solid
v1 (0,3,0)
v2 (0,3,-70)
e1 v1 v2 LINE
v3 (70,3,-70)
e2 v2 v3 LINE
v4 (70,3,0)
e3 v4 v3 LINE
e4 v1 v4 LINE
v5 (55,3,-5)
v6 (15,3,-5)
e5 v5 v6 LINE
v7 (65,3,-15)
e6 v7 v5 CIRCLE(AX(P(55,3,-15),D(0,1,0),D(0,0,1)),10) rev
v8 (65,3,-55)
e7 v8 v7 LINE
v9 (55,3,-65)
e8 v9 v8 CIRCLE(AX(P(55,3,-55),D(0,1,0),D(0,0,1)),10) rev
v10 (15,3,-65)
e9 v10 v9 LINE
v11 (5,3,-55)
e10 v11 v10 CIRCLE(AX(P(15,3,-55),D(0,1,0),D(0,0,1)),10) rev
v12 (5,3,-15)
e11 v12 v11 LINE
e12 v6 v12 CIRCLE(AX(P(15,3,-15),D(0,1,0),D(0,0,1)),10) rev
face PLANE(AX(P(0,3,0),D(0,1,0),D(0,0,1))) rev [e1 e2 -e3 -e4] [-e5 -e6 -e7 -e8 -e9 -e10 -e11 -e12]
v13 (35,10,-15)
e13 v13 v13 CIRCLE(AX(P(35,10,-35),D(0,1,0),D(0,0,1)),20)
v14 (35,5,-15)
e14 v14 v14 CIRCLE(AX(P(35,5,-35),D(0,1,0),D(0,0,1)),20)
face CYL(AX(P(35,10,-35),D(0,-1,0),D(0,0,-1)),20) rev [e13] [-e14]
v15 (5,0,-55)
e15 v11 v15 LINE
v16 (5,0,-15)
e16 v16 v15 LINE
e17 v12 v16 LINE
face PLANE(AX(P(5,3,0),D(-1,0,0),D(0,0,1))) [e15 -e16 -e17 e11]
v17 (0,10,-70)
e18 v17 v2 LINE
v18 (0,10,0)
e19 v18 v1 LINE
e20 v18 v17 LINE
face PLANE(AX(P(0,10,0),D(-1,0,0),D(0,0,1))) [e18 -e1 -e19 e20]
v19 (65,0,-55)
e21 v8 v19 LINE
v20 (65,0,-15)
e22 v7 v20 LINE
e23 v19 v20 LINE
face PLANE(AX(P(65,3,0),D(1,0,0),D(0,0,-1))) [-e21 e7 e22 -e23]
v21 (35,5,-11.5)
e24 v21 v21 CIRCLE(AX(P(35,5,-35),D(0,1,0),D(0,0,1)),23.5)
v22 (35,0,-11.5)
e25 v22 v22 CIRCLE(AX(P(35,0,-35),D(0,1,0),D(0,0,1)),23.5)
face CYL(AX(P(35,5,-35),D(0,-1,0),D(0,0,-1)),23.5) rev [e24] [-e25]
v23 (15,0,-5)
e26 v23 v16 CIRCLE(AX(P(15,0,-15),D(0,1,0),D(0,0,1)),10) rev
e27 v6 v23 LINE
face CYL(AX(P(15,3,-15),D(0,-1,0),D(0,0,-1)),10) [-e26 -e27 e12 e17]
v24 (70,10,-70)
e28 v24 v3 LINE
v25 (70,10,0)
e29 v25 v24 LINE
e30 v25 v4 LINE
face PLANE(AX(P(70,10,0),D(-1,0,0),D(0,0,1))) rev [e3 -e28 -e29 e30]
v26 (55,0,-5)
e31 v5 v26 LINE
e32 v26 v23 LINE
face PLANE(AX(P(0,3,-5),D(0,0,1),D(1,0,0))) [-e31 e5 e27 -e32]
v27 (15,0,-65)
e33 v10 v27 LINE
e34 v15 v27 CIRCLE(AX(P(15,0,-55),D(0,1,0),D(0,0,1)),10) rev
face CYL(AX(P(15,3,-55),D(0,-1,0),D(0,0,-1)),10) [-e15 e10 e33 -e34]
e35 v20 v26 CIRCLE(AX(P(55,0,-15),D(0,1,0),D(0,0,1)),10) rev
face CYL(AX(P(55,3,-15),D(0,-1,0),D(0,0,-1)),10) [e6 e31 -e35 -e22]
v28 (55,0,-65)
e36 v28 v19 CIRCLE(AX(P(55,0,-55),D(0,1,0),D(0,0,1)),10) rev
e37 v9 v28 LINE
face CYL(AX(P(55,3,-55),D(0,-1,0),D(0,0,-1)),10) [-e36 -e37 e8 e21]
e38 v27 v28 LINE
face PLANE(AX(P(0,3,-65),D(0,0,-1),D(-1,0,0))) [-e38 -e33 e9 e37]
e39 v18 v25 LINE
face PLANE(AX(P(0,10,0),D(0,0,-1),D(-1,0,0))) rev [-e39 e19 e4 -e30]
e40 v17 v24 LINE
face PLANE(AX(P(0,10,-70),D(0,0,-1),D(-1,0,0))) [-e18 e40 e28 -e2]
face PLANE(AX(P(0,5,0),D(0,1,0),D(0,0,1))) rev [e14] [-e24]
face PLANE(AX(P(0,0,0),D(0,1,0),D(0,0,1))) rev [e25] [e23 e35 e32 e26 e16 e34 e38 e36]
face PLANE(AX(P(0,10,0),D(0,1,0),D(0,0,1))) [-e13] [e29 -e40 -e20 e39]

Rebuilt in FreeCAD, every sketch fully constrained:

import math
import FreeCAD as App
import Part
import Sketcher

V = App.Vector

doc = App.newDocument("Part")
body = doc.addObject("PartDesign::Body", "Body")

sketch1 = body.newObject("Sketcher::SketchObject", "Sketch")
sketch1.AttachmentSupport = (doc.getObject("XZ_Plane"), [""])
sketch1.MapMode = "FlatFace"
sketch1.addGeometry([
    Part.LineSegment(V(0, -70, 0), V(0, 0, 0)),
    Part.LineSegment(V(0, 0, 0), V(70, 0, 0)),
    Part.LineSegment(V(70, 0, 0), V(70, -70, 0)),
    Part.LineSegment(V(70, -70, 0), V(0, -70, 0)),
    Part.Circle(V(35, -35, 0), V(0, 0, 1), 20),
], False)
sketch1.addConstraint([
    Sketcher.Constraint("Coincident", 0, 2, 1, 1),
    Sketcher.Constraint("Coincident", 1, 2, 2, 1),
    Sketcher.Constraint("Coincident", 2, 2, 3, 1),
    Sketcher.Constraint("Coincident", 3, 2, 0, 1),
    Sketcher.Constraint("Vertical", 0),
    Sketcher.Constraint("Horizontal", 1),
    Sketcher.Constraint("Vertical", 2),
    Sketcher.Constraint("Horizontal", 3),
    Sketcher.Constraint("Coincident", 0, 2, -1, 1),
    Sketcher.Constraint("Equal", 3, 0),
    Sketcher.Constraint("Diameter", 4, 40.0),
    Sketcher.Constraint("DistanceX", 1, 1, 1, 2, 70.0),
    Sketcher.Constraint("DistanceX", -1, 1, 4, 3, 35.0),
    Sketcher.Constraint("DistanceY", 4, 3, -1, 1, 35.0),
])
pad1 = body.newObject("PartDesign::Pad", "Pad")
pad1.Profile = sketch1
pad1.Length = 10
pad1.Reversed = True

sketch2 = body.newObject("Sketcher::SketchObject", "Sketch001")
sketch2.AttachmentSupport = (doc.getObject("XZ_Plane"), [""])
sketch2.MapMode = "FlatFace"
sketch2.addGeometry([
    Part.LineSegment(V(0, -70, 0), V(0, 0, 0)),
    Part.LineSegment(V(0, 0, 0), V(70, 0, 0)),
    Part.LineSegment(V(70, 0, 0), V(70, -70, 0)),
    Part.LineSegment(V(70, -70, 0), V(0, -70, 0)),
    Part.LineSegment(V(5, -15, 0), V(5, -55, 0)),
    Part.ArcOfCircle(Part.Circle(V(15, -55, 0), V(0, 0, 1), 10), math.radians(180), math.radians(270)),
    Part.LineSegment(V(15, -65, 0), V(55, -65, 0)),
    Part.ArcOfCircle(Part.Circle(V(55, -55, 0), V(0, 0, 1), 10), math.radians(-90), math.radians(0)),
    Part.LineSegment(V(65, -55, 0), V(65, -15, 0)),
    Part.ArcOfCircle(Part.Circle(V(55, -15, 0), V(0, 0, 1), 10), math.radians(0), math.radians(90)),
    Part.LineSegment(V(55, -5, 0), V(15, -5, 0)),
    Part.ArcOfCircle(Part.Circle(V(15, -15, 0), V(0, 0, 1), 10), math.radians(90), math.radians(180)),
], False)
sketch2.addConstraint([
    Sketcher.Constraint("Coincident", 0, 2, 1, 1),
    Sketcher.Constraint("Coincident", 1, 2, 2, 1),
    Sketcher.Constraint("Coincident", 2, 2, 3, 1),
    Sketcher.Constraint("Coincident", 3, 2, 0, 1),
    Sketcher.Constraint("Tangent", 4, 2, 5, 1),
    Sketcher.Constraint("Tangent", 5, 2, 6, 1),
    Sketcher.Constraint("Tangent", 6, 2, 7, 1),
    Sketcher.Constraint("Tangent", 7, 2, 8, 1),
    Sketcher.Constraint("Tangent", 8, 2, 9, 1),
    Sketcher.Constraint("Tangent", 9, 2, 10, 1),
    Sketcher.Constraint("Tangent", 10, 2, 11, 1),
    Sketcher.Constraint("Tangent", 11, 2, 4, 1),
    Sketcher.Constraint("Vertical", 0),
    Sketcher.Constraint("Horizontal", 1),
    Sketcher.Constraint("Vertical", 2),
    Sketcher.Constraint("Horizontal", 3),
    Sketcher.Constraint("Vertical", 4),
    Sketcher.Constraint("Horizontal", 6),
    Sketcher.Constraint("Vertical", 8),
    Sketcher.Constraint("Horizontal", 10),
    Sketcher.Constraint("Coincident", 0, 2, -1, 1),
    Sketcher.Constraint("Equal", 5, 7),
    Sketcher.Constraint("Equal", 7, 9),
    Sketcher.Constraint("Equal", 9, 11),
    Sketcher.Constraint("Equal", 3, 0),
    Sketcher.Constraint("Equal", 10, 4),
    Sketcher.Constraint("Radius", 5, 10.0),
    Sketcher.Constraint("DistanceX", 1, 1, 1, 2, 70.0),
    Sketcher.Constraint("DistanceX", 6, 1, 6, 2, 40.0),
    Sketcher.Constraint("DistanceX", -1, 1, 5, 3, 15.0),
    Sketcher.Constraint("DistanceY", 5, 3, -1, 1, 55.0),
])
pocket1 = body.newObject("PartDesign::Pocket", "Pocket")
pocket1.Profile = sketch2
pocket1.Length = 3

sketch3 = body.newObject("Sketcher::SketchObject", "Sketch002")
sketch3.AttachmentSupport = (doc.getObject("XZ_Plane"), [""])
sketch3.MapMode = "FlatFace"
sketch3.addGeometry([
    Part.Circle(V(35, -35, 0), V(0, 0, 1), 24),
    Part.Circle(V(35, -35, 0), V(0, 0, 1), 20),
], False)
sketch3.addConstraint([
    Sketcher.Constraint("Coincident", 1, 3, 0, 3),
    Sketcher.Constraint("Diameter", 0, 47.0),
    Sketcher.Constraint("Diameter", 1, 40.0),
    Sketcher.Constraint("DistanceX", -1, 1, 0, 3, 35.0),
    Sketcher.Constraint("DistanceY", 0, 3, -1, 1, 35.0),
])
pocket2 = body.newObject("PartDesign::Pocket", "Pocket001")
pocket2.Profile = sketch3
pocket2.Length = 5

doc.recompute()
